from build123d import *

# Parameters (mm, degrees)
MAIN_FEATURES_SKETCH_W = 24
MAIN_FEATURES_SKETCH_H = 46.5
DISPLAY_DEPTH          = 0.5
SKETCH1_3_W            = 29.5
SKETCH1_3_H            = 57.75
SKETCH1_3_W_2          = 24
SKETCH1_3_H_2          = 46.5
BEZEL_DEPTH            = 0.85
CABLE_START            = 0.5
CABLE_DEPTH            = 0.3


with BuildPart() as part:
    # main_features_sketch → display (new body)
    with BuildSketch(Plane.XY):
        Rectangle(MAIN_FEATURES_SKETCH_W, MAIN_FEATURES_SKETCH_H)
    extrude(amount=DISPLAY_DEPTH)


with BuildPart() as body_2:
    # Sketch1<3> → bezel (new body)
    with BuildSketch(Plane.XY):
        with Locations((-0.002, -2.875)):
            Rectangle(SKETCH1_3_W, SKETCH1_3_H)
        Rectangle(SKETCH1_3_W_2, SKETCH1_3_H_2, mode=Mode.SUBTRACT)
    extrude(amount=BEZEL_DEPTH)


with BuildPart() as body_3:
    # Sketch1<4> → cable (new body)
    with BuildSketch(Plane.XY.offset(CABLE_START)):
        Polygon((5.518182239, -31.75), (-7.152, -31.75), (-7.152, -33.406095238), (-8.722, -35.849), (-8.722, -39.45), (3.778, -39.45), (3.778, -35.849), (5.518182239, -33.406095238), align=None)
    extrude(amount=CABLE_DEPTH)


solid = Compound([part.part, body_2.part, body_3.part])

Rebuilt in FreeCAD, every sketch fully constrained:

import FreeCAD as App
import Part
import Sketcher
from FreeCAD import Vector
Q = App.Units.Quantity


def add_polygon(sketch, points):
    """Adds a closed chain of lines whose ends are joined by coincident constraints."""
    first, n = sketch.GeometryCount, len(points)
    for a, b in zip(points, points[1:] + points[:1]):
        sketch.addGeometry(Part.LineSegment(App.Vector(*a, 0), App.Vector(*b, 0)), False)
    for i in range(n):
        sketch.addConstraint(Sketcher.Constraint("Coincident", first + i, 2, first + (i + 1) % n, 1))

doc = App.newDocument("Part")
body = doc.addObject("PartDesign::Body", "Body")

# Sketch on XY plane
sketch1 = doc.addObject("Sketcher::SketchObject", "Sketch")
body.addObject(sketch1)
sketch1.AttachmentSupport = (doc.XY_Plane, [""])
sketch1.MapMode = "FlatFace"
add_polygon(sketch1, [(-12, 23.25), (-12, -23.25), (12, -23.25), (12, 23.25)])  # lines 0-3
sketch1.addConstraint(Sketcher.Constraint("Vertical", 0))
sketch1.addConstraint(Sketcher.Constraint("Horizontal", 1))
sketch1.addConstraint(Sketcher.Constraint("Vertical", 2))
sketch1.addConstraint(Sketcher.Constraint("Horizontal", 3))
sketch1.addConstraint(Sketcher.Constraint("Symmetric", 0, 2, 2, 2, -1, 1))
sketch1.addConstraint(Sketcher.Constraint("DistanceX", 1, 1, 1, 2, Q("24 mm")))
sketch1.addConstraint(Sketcher.Constraint("DistanceY", 0, 2, 0, 1, Q("46.5 mm")))
pad1 = doc.addObject("PartDesign::Pad", "Pad")
body.addObject(pad1)
pad1.Profile = sketch1
pad1.Length = 0.5
body2 = doc.addObject("PartDesign::Body", "Body001")

# Sketch on XY plane
sketch2 = doc.addObject("Sketcher::SketchObject", "Sketch001")
body2.addObject(sketch2)
sketch2.AttachmentSupport = (doc.getObject("XY_Plane001"), [""])
sketch2.MapMode = "FlatFace"
add_polygon(sketch2, [(-14.752, 26), (-14.752, -31.75), (14.748, -31.75), (14.748, 26)])  # lines 0-3
add_polygon(sketch2, [(12, -23.25), (-12, -23.25), (-12, 23.25), (12, 23.25)])  # lines 4-7
sketch2.addConstraint(Sketcher.Constraint("Vertical", 0))
sketch2.addConstraint(Sketcher.Constraint("Horizontal", 1))
sketch2.addConstraint(Sketcher.Constraint("Vertical", 2))
sketch2.addConstraint(Sketcher.Constraint("Horizontal", 3))
sketch2.addConstraint(Sketcher.Constraint("Horizontal", 4))
sketch2.addConstraint(Sketcher.Constraint("Vertical", 5))
sketch2.addConstraint(Sketcher.Constraint("Horizontal", 6))
sketch2.addConstraint(Sketcher.Constraint("Vertical", 7))
sketch2.addConstraint(Sketcher.Constraint("Symmetric", 4, 2, 6, 2, -1, 1))
sketch2.addConstraint(Sketcher.Constraint("DistanceX", 4, 2, 4, 1, Q("24 mm")))
sketch2.addConstraint(Sketcher.Constraint("DistanceX", 1, 1, 1, 2, Q("29.5 mm")))
sketch2.addConstraint(Sketcher.Constraint("DistanceY", 5, 1, 5, 2, Q("46.5 mm")))
sketch2.addConstraint(Sketcher.Constraint("DistanceY", -1, 1, 2, 2, Q("26 mm")))
sketch2.addConstraint(Sketcher.Constraint("DistanceY", 0, 2, 5, 2, Q("55 mm")))
sketch2.addConstraint(Sketcher.Constraint("DistanceX", 0, 2, -1, 1, Q("14.752 mm")))
pad2 = doc.addObject("PartDesign::Pad", "Pad001")
body2.addObject(pad2)
pad2.Profile = sketch2
pad2.Length = 0.85
body3 = doc.addObject("PartDesign::Body", "Body002")

# Sketch on XY plane
sketch3 = doc.addObject("Sketcher::SketchObject", "Sketch002")
body3.addObject(sketch3)
sketch3.AttachmentSupport = (doc.getObject("XY_Plane002"), [""])
sketch3.MapMode = "FlatFace"
sketch3.AttachmentOffset = App.Placement(Vector(0, 0, 0.5), App.Rotation())
add_polygon(sketch3, [(5.518182, -31.75), (-7.152, -31.75), (-7.152, -33.406095), (-8.722, -35.849), (-8.722, -39.45), (3.778, -39.45), (3.778, -35.849), (5.518182, -33.406095)])  # lines 0-7
sketch3.addConstraint(Sketcher.Constraint("Horizontal", 0))
sketch3.addConstraint(Sketcher.Constraint("Vertical", 1))
sketch3.addConstraint(Sketcher.Constraint("Vertical", 3))
sketch3.addConstraint(Sketcher.Constraint("Horizontal", 4))
sketch3.addConstraint(Sketcher.Constraint("Vertical", 5))
sketch3.addConstraint(Sketcher.Constraint("Vertical", 7))
sketch3.addConstraint(Sketcher.Constraint("Horizontal", 2, 2, 5, 2))
sketch3.addConstraint(Sketcher.Constraint("Horizontal", 1, 2, 6, 2))
sketch3.addConstraint(Sketcher.Constraint("DistanceX", 4, 1, 4, 2, Q("12.5 mm")))
sketch3.addConstraint(Sketcher.Constraint("DistanceY", 3, 2, 0, 2, Q("7.7 mm")))
sketch3.addConstraint(Sketcher.Constraint("DistanceY", 3, 2, 3, 1, Q("3.601 mm")))
sketch3.addConstraint(Sketcher.Constraint("DistanceY", 0, 2, -1, 1, Q("31.75 mm")))
sketch3.addConstraint(Sketcher.Constraint("DistanceX", 2, 2, 1, 2, Q("1.57 mm")))
sketch3.addConstraint(Sketcher.Constraint("DistanceX", 0, 2, -1, 1, Q("7.152 mm")))
sketch3.addConstraint(Sketcher.Constraint("Distance", 2, Q("2.903908 mm")))
sketch3.addConstraint(Sketcher.Constraint("DistanceX", 0, 2, 0, 1, Q("12.670182 mm")))
pad3 = doc.addObject("PartDesign::Pad", "Pad002")
body3.addObject(pad3)
pad3.Profile = sketch3
pad3.Length = 0.3

doc.recompute()
